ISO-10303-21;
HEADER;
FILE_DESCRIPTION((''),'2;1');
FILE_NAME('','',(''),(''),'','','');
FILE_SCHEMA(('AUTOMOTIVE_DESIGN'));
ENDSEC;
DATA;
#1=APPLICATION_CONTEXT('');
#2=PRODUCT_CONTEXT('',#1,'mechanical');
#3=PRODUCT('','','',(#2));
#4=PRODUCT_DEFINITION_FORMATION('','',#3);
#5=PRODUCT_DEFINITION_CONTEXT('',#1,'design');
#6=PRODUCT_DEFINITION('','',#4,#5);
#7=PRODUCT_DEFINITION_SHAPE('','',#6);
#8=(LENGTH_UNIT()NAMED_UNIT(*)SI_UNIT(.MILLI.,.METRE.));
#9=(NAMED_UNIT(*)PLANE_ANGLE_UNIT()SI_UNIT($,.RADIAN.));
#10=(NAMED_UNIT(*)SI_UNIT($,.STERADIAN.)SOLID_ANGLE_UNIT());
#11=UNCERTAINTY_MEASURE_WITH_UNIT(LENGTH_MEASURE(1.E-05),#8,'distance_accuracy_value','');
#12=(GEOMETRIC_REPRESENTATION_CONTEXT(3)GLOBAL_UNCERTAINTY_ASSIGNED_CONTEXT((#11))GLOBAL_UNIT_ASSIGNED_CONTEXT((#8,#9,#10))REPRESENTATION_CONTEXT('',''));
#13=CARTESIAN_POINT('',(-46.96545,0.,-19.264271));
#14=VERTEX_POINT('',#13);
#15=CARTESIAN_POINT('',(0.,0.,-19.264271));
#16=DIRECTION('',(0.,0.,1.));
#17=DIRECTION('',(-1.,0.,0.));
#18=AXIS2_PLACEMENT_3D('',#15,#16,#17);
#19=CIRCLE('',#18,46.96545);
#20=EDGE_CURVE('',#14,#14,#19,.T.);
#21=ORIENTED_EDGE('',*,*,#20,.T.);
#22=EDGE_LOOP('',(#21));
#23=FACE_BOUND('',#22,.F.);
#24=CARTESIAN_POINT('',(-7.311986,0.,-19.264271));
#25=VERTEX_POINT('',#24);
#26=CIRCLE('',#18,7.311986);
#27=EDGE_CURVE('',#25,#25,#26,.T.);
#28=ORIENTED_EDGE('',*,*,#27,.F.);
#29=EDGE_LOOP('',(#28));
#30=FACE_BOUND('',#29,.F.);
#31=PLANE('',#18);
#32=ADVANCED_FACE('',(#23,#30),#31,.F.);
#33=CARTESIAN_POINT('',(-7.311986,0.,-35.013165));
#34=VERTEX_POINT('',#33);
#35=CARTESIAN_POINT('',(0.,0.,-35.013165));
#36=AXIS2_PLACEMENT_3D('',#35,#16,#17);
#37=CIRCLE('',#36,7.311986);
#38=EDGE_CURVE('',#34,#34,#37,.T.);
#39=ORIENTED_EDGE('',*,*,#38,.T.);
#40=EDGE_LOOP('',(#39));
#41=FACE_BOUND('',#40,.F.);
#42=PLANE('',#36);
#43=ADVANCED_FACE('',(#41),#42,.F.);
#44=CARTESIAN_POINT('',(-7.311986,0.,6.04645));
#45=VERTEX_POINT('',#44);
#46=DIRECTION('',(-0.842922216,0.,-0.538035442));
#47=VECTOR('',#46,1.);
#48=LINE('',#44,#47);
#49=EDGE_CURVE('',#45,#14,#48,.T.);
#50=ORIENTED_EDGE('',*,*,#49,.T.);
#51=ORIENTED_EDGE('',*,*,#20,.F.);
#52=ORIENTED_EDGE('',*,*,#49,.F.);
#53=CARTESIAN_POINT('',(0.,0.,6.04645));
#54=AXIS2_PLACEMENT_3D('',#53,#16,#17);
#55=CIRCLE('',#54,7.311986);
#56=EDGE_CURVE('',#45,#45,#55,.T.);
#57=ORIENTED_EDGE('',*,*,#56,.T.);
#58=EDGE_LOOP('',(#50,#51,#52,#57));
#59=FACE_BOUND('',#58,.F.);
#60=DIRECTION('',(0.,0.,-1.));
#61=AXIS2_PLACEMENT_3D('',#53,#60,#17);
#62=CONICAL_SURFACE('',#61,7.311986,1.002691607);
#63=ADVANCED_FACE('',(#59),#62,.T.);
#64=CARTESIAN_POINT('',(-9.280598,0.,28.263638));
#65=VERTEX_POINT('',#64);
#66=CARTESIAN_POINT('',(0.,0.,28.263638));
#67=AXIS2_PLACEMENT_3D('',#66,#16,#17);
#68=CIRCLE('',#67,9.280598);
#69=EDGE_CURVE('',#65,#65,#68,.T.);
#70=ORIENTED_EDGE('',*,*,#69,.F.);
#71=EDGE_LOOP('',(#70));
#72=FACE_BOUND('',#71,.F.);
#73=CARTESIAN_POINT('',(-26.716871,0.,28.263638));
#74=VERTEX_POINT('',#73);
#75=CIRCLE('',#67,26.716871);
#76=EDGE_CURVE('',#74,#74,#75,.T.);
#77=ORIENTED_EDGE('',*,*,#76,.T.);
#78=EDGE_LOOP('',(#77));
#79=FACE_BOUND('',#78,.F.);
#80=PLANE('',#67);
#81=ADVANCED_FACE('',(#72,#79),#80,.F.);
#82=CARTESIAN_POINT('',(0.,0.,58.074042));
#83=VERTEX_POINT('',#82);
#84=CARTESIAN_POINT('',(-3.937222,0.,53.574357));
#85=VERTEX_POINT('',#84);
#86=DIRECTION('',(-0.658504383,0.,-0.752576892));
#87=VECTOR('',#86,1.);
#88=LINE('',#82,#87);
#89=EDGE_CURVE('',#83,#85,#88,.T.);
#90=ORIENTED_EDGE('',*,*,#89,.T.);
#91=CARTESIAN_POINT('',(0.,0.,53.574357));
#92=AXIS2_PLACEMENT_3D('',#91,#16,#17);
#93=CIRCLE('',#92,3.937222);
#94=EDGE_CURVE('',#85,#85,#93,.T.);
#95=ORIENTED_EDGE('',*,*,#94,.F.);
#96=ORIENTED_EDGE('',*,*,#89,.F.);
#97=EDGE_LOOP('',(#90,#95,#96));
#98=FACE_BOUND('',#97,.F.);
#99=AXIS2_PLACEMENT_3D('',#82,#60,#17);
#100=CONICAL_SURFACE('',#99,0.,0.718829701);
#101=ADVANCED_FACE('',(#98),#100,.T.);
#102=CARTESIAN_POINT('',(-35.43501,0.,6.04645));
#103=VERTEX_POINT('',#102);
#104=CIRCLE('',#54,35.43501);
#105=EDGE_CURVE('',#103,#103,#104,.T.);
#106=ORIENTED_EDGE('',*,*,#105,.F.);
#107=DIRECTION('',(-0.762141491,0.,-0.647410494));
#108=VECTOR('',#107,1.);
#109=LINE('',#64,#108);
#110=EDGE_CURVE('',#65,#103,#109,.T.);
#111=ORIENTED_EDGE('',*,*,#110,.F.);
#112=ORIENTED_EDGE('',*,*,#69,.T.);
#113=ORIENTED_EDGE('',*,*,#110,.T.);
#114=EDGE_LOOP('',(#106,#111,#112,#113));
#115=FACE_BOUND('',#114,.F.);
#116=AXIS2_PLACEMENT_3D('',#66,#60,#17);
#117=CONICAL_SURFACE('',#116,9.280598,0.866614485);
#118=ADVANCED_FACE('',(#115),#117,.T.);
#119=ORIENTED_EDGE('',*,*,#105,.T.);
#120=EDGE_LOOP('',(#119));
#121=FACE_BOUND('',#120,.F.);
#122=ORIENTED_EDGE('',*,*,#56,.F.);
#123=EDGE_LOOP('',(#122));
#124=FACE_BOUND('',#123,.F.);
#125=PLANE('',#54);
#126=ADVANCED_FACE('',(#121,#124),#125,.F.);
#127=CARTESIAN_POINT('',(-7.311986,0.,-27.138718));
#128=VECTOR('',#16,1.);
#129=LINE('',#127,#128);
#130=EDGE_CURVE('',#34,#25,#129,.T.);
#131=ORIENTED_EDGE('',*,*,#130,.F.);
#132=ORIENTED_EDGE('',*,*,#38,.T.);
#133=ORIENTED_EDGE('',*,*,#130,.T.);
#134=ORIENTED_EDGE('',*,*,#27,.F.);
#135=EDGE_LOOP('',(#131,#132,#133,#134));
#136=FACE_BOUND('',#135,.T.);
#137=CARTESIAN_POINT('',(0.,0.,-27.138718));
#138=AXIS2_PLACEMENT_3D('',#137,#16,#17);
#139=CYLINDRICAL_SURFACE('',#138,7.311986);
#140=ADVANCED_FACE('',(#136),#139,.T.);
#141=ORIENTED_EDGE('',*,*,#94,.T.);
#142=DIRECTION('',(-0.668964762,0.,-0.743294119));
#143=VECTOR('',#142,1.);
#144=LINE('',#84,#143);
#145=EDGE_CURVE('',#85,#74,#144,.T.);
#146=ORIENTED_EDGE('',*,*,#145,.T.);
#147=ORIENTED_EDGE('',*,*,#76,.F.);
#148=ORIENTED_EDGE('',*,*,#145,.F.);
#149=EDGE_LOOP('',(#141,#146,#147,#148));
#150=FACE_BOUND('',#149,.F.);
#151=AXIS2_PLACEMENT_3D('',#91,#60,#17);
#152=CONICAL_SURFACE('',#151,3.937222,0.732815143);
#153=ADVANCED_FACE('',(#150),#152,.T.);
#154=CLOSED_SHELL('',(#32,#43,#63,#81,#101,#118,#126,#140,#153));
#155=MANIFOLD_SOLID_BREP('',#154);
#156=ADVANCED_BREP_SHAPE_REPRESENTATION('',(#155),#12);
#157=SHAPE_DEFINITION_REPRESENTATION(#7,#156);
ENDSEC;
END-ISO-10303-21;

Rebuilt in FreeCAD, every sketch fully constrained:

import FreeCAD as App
import Part
import Sketcher

V = App.Vector
Q = App.Units.Quantity

doc = App.newDocument("Part")
body = doc.addObject("PartDesign::Body", "Body")

# Sketch on XZ plane
sketch1 = body.newObject("Sketcher::SketchObject", "Sketch")
sketch1.AttachmentSupport = (doc.getObject("XZ_Plane"), [""])
sketch1.MapMode = "FlatFace"
sketch1.addGeometry([
    Part.LineSegment(V(0, 58.074042, 0), V(-3.937222, 53.574357, 0)),  # 0
    Part.LineSegment(V(-3.937222, 53.574357, 0), V(-26.716871, 28.263638, 0)),  # 1
    Part.LineSegment(V(-26.716871, 28.263638, 0), V(-9.280598, 28.263638, 0)),  # 2
    Part.LineSegment(V(-9.280598, 28.263638, 0), V(-35.43501, 6.04645, 0)),  # 3
    Part.LineSegment(V(-35.43501, 6.04645, 0), V(-7.311986, 6.04645, 0)),  # 4
    Part.LineSegment(V(-7.311986, 6.04645, 0), V(-46.96545, -19.264271, 0)),  # 5
    Part.LineSegment(V(-46.96545, -19.264271, 0), V(-7.311986, -19.264271, 0)),  # 6
    Part.LineSegment(V(-7.311986, -19.264271, 0), V(-7.311986, -35.013165, 0)),  # 7
    Part.LineSegment(V(-7.311986, -35.013165, 0), V(0, -35.013165, 0)),  # 8
    Part.LineSegment(V(0, -35.013165, 0), V(0, 58.074042, 0)),  # 9
], False)
sketch1.addConstraint([
    Sketcher.Constraint("Coincident", 0, 2, 1, 1),
    Sketcher.Constraint("Coincident", 1, 2, 2, 1),
    Sketcher.Constraint("Coincident", 2, 2, 3, 1),
    Sketcher.Constraint("Coincident", 3, 2, 4, 1),
    Sketcher.Constraint("Coincident", 4, 2, 5, 1),
    Sketcher.Constraint("Coincident", 5, 2, 6, 1),
    Sketcher.Constraint("Coincident", 6, 2, 7, 1),
    Sketcher.Constraint("Coincident", 7, 2, 8, 1),
    Sketcher.Constraint("Coincident", 8, 2, 9, 1),
    Sketcher.Constraint("Coincident", 9, 2, 0, 1),
    Sketcher.Constraint("Horizontal", 2),
    Sketcher.Constraint("Horizontal", 4),
    Sketcher.Constraint("Horizontal", 6),
    Sketcher.Constraint("Vertical", 7),
    Sketcher.Constraint("Horizontal", 8),
    Sketcher.Constraint("Vertical", 9),
    Sketcher.Constraint("PointOnObject", 8, 2, -2),
    Sketcher.Constraint("Vertical", 4, 2, 6, 2),
    Sketcher.Constraint("Angle", 5, Q("-147.449997 deg")),
    Sketcher.Constraint("Distance", 1, 34.052091),
    Sketcher.Constraint("Distance", 5, 47.042851),
    Sketcher.Constraint("DistanceX", 2, 1, 2, 2, 17.436273),
    Sketcher.Constraint("DistanceX", 4, 1, 4, 2, 28.123024),
    Sketcher.Constraint("DistanceX", 8, 1, 8, 2, 7.311986),
    Sketcher.Constraint("DistanceY", 7, 2, 7, 1, 15.748894),
    Sketcher.Constraint("DistanceY", 9, 1, 9, 2, 93.087207),
    Sketcher.Constraint("DistanceX", 1, 2, -1, 1, 26.716871),
    Sketcher.Constraint("DistanceY", -1, 1, 1, 2, 28.263638),
    Sketcher.Constraint("DistanceY", -1, 1, 3, 2, 6.04645),
    Sketcher.Constraint("DistanceX", 1, 2, 0, 2, 22.779649),
])
revolution = body.newObject("PartDesign::Revolution", "Revolution")
revolution.Profile = sketch1
revolution.ReferenceAxis = (sketch1, ["V_Axis"])
revolution.Angle = 360

doc.recompute()
